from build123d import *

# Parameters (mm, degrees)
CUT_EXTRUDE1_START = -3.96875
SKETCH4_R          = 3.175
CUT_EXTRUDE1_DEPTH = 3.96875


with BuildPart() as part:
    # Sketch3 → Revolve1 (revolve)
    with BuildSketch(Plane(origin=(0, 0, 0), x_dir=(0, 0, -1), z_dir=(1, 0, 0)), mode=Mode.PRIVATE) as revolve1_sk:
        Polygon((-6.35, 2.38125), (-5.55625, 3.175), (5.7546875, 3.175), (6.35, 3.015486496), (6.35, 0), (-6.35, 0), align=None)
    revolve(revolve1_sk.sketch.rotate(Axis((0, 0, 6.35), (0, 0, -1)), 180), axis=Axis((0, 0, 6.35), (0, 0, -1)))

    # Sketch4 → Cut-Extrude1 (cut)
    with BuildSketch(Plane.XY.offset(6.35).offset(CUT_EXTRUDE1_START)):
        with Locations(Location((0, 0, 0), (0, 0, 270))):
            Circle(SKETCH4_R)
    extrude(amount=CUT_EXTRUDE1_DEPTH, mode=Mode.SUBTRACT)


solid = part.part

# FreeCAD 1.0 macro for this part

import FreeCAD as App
import Part
import Sketcher
from FreeCAD import Vector
Q = App.Units.Quantity

doc = App.newDocument("Part")
body = doc.addObject("PartDesign::Body", "Body")

sketch1 = body.newObject("Sketcher::SketchObject", "Sketch")
sketch1.AttachmentSupport = (doc.getObject("YZ_Plane"), [""])
sketch1.MapMode = "FlatFace"
sketch1.addGeometry([
    Part.LineSegment(Vector(3.175, 5.55625, 0), Vector(2.38125, 6.35, 0)),
    Part.LineSegment(Vector(2.38125, 6.35, 0), Vector(0, 6.35, 0)),
    Part.LineSegment(Vector(0, 6.35, 0), Vector(0, -6.35, 0)),
    Part.LineSegment(Vector(0, -6.35, 0), Vector(3.015486, -6.35, 0)),
    Part.LineSegment(Vector(3.015486, -6.35, 0), Vector(3.175, -5.754688, 0)),
    Part.LineSegment(Vector(3.175, -5.754688, 0), Vector(3.175, 5.55625, 0)),
], False)
sketch1.addConstraint([
    Sketcher.Constraint("Coincident", 0, 2, 1, 1),
    Sketcher.Constraint("Coincident", 1, 2, 2, 1),
    Sketcher.Constraint("Coincident", 2, 2, 3, 1),
    Sketcher.Constraint("Coincident", 3, 2, 4, 1),
    Sketcher.Constraint("Coincident", 4, 2, 5, 1),
    Sketcher.Constraint("Coincident", 5, 2, 0, 1),
    Sketcher.Constraint("Horizontal", 1),
    Sketcher.Constraint("Vertical", 2),
    Sketcher.Constraint("Horizontal", 3),
    Sketcher.Constraint("Vertical", 5),
    Sketcher.Constraint("Symmetric", 1, 2, 2, 2, -1, 1),
    Sketcher.Constraint("DistanceY", 2, 2, 2, 1, Q("0.5 in")),
    Sketcher.Constraint("Angle", 0, Q("135 deg")),
    Sketcher.Constraint("Angle", 4, Q("75 deg")),
    Sketcher.Constraint("DistanceX", 1, 2, 1, 1, Q("0.09375 in")),
    Sketcher.Constraint("DistanceX", -1, 1, 4, 2, Q("0.125 in")),
    Sketcher.Constraint("DistanceX", 3, 1, 3, 2, Q("3.015486 mm")),
])
revolution = body.newObject("PartDesign::Revolution", "Revolution")
revolution.Profile = sketch1
revolution.ReferenceAxis = (sketch1, ["V_Axis"])
revolution.Angle = 360

sketch2 = body.newObject("Sketcher::SketchObject", "Sketch001")
sketch2.AttachmentSupport = (doc.getObject("XY_Plane"), [""])
sketch2.MapMode = "FlatFace"
sketch2.AttachmentOffset = App.Placement(Vector(0, 0, 0.09375 * 25.4), App.Rotation())
sketch2.addGeometry(Part.Circle(Vector(0, 0, 0), Vector(0, 0, 1), 3.175), False)
sketch2.addConstraint([
    Sketcher.Constraint("Coincident", 0, 3, -1, 1),
    Sketcher.Constraint("Diameter", 0, Q("0.25 in")),
])
pocket1 = body.newObject("PartDesign::Pocket", "Pocket")
pocket1.Profile = sketch2
pocket1.Length = Q("0.15625 in")
pocket1.Reversed = True

doc.recompute()
